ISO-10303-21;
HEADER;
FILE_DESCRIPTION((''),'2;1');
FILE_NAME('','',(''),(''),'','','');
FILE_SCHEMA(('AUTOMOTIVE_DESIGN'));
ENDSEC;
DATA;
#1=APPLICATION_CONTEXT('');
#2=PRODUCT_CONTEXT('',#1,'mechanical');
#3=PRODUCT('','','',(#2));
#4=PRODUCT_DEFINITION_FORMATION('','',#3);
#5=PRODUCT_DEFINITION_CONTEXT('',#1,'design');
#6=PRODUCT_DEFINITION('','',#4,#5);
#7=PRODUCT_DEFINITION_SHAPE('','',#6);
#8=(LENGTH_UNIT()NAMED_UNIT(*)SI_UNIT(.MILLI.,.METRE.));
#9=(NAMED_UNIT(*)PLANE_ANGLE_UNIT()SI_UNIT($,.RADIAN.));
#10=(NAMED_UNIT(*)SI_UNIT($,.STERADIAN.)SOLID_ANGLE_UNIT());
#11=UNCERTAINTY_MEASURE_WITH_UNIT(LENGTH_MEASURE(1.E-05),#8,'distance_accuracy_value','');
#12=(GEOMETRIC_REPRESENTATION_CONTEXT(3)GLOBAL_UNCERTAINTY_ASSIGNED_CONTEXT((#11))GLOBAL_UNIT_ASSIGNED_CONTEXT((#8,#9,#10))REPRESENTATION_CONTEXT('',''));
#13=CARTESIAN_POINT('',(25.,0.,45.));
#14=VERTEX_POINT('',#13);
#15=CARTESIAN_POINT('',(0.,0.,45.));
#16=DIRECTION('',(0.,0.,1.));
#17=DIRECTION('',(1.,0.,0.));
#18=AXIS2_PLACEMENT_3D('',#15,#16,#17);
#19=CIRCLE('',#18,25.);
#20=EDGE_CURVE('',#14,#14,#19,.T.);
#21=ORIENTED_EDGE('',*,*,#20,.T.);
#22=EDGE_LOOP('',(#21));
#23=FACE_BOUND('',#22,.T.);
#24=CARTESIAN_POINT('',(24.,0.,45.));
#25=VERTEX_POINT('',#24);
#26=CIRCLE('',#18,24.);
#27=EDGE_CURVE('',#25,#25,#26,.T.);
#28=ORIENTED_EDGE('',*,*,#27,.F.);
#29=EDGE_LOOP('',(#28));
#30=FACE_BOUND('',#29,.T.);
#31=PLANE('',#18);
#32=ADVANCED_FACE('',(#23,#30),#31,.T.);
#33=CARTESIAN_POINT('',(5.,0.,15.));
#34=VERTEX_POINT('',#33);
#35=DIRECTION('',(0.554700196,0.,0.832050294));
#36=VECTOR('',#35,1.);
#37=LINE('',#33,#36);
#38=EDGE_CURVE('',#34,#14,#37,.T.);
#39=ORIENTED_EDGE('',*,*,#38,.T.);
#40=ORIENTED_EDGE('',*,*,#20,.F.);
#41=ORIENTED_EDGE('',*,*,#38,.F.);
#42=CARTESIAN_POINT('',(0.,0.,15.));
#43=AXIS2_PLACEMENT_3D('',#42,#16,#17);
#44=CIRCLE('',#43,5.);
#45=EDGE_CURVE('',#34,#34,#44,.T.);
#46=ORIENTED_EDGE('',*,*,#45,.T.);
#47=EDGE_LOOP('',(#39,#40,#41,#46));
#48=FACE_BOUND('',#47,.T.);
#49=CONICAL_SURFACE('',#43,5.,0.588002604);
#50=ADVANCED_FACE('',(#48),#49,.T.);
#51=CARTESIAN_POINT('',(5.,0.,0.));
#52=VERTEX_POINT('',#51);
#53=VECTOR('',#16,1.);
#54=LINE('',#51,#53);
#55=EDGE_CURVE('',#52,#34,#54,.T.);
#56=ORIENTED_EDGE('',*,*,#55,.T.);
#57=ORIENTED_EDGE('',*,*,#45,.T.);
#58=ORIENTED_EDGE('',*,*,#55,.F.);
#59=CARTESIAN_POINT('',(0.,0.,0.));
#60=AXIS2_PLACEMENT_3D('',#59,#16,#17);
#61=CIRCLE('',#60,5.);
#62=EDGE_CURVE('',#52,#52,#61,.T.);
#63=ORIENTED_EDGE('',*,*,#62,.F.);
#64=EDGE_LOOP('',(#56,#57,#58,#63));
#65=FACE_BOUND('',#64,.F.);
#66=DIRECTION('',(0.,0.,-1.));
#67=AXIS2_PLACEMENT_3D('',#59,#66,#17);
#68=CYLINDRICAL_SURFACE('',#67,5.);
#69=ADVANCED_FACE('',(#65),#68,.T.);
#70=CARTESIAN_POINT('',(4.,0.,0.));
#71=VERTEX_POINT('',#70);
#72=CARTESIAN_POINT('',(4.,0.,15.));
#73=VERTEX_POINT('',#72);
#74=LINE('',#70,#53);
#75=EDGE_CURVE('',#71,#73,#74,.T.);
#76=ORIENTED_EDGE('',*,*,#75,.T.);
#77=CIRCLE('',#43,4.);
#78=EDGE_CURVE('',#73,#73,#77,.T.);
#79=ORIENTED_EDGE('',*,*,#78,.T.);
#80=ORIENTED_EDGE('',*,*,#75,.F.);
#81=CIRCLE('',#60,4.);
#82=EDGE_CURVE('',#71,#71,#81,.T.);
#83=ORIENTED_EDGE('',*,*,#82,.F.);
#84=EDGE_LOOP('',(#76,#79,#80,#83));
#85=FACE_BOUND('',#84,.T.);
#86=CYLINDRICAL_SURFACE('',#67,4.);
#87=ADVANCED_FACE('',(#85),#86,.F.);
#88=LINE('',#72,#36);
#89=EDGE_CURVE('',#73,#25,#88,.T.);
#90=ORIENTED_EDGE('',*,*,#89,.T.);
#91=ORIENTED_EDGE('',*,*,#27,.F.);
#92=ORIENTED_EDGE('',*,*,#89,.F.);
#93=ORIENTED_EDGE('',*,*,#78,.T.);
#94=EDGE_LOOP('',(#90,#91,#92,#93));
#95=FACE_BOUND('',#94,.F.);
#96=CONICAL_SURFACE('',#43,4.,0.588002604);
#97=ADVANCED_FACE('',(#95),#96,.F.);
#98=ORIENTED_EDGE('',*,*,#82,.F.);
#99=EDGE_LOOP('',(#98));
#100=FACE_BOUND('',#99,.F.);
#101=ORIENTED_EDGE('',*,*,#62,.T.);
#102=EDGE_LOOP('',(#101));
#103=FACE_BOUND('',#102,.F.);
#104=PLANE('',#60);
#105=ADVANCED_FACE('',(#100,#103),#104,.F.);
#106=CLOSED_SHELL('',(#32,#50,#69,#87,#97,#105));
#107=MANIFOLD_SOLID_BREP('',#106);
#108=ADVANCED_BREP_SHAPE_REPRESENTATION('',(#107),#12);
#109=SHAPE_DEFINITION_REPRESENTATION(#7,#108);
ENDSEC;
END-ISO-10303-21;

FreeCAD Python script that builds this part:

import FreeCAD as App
import Part
import Sketcher
from FreeCAD import Vector


def add_polygon(sketch, points):
    """Adds a closed chain of lines whose ends are joined by coincident constraints."""
    first, n = sketch.GeometryCount, len(points)
    for a, b in zip(points, points[1:] + points[:1]):
        sketch.addGeometry(Part.LineSegment(App.Vector(*a, 0), App.Vector(*b, 0)), False)
    for i in range(n):
        sketch.addConstraint(Sketcher.Constraint("Coincident", first + i, 2, first + (i + 1) % n, 1))

doc = App.newDocument("Part")
params = doc.addObject("Spreadsheet::Sheet", "Params")
for row, (alias, value) in enumerate([
    ("sketch1_width", "4 mm"),
    ("sketch1_width2", "24 mm"),
    ("sketch1_height", "30 mm"),
    ("revolution_angle", "360 deg"),
    ("sketch2_width", "5 mm"),
    ("sketch2_width2", "25 mm"),
    ("sketch2_height", "30 mm"),
    ("revolution2_angle", "360 deg"),
    ("sketch3_diameter", "8 mm"),
    ("pad1_length", "15 mm"),
    ("sketch4_diameter", "10 mm"),
    ("pad2_length", "15 mm"),
], start=1):
    params.set(f"A{row}", alias)
    params.set(f"B{row}", "=" + value)
    params.setAlias(f"B{row}", alias)

body = doc.addObject("PartDesign::Body", "Body")

# Sketch on XZ plane
sketch1 = body.newObject("Sketcher::SketchObject", "Sketch")
sketch1.AttachmentSupport = (doc.getObject("XZ_Plane"), [""])
sketch1.MapMode = "FlatFace"
add_polygon(sketch1, [(0, 15), (4, 15), (24, 45), (0, 45)])  # lines 0-3
sketch1.addConstraint(Sketcher.Constraint("Horizontal", 0))
sketch1.addConstraint(Sketcher.Constraint("Horizontal", 2))
sketch1.addConstraint(Sketcher.Constraint("Vertical", 3))
sketch1.addConstraint(Sketcher.Constraint("PointOnObject", 2, 2, -2))
sketch1.addConstraint(Sketcher.Constraint("DistanceX", 0, 1, 0, 2, 4.0))
sketch1.addConstraint(Sketcher.Constraint("DistanceX", 2, 2, 2, 1, 24.0))
sketch1.addConstraint(Sketcher.Constraint("DistanceY", 3, 2, 3, 1, 30.0))
sketch1.addConstraint(Sketcher.Constraint("DistanceY", -1, 1, 0, 2, 15.0))
sketch1.setExpression("Constraints[8]", "Params.sketch1_width")
sketch1.setExpression("Constraints[9]", "Params.sketch1_width2")
sketch1.setExpression("Constraints[10]", "Params.sketch1_height")
revolution = body.newObject("PartDesign::Revolution", "Revolution")
revolution.Profile = sketch1
revolution.ReferenceAxis = (sketch1, ["V_Axis"])
revolution.setExpression("Angle", "Params.revolution_angle")
body2 = doc.addObject("PartDesign::Body", "Body001")

# Sketch on XZ plane
sketch2 = body2.newObject("Sketcher::SketchObject", "Sketch001")
sketch2.AttachmentSupport = (doc.getObject("XZ_Plane001"), [""])
sketch2.MapMode = "FlatFace"
add_polygon(sketch2, [(0, 15), (5, 15), (25, 45), (0, 45)])  # lines 0-3
sketch2.addConstraint(Sketcher.Constraint("Horizontal", 0))
sketch2.addConstraint(Sketcher.Constraint("Horizontal", 2))
sketch2.addConstraint(Sketcher.Constraint("Vertical", 3))
sketch2.addConstraint(Sketcher.Constraint("PointOnObject", 2, 2, -2))
sketch2.addConstraint(Sketcher.Constraint("DistanceX", 0, 1, 0, 2, 5.0))
sketch2.addConstraint(Sketcher.Constraint("DistanceX", 2, 2, 2, 1, 25.0))
sketch2.addConstraint(Sketcher.Constraint("DistanceY", 3, 2, 3, 1, 30.0))
sketch2.addConstraint(Sketcher.Constraint("DistanceY", -1, 1, 0, 2, 15.0))
sketch2.setExpression("Constraints[8]", "Params.sketch2_width")
sketch2.setExpression("Constraints[9]", "Params.sketch2_width2")
sketch2.setExpression("Constraints[10]", "Params.sketch2_height")
revolution2 = body2.newObject("PartDesign::Revolution", "Revolution001")
revolution2.Profile = sketch2
revolution2.ReferenceAxis = (sketch2, ["V_Axis"])
revolution2.setExpression("Angle", "Params.revolution2_angle")
doc.recompute()

boolean = body2.newObject("PartDesign::Boolean", "Boolean")
boolean.Type = "Cut"
boolean.addObjects([body])
body3 = doc.addObject("PartDesign::Body", "Body002")

# Sketch on XY plane
sketch3 = body3.newObject("Sketcher::SketchObject", "Sketch002")
sketch3.AttachmentSupport = (doc.getObject("XY_Plane002"), [""])
sketch3.MapMode = "FlatFace"
sketch3.addGeometry(Part.Circle(Vector(0, 0, 0), Vector(0, 0, 1), 4), False)
sketch3.addConstraint(Sketcher.Constraint("Coincident", 0, 3, -1, 1))
sketch3.addConstraint(Sketcher.Constraint("Diameter", 0, 8.0))
sketch3.setExpression("Constraints[1]", "Params.sketch3_diameter")
pad1 = body3.newObject("PartDesign::Pad", "Pad")
pad1.Profile = sketch3
pad1.setExpression("Length", "Params.pad1_length")
body4 = doc.addObject("PartDesign::Body", "Body003")

# Sketch on XY plane
sketch4 = body4.newObject("Sketcher::SketchObject", "Sketch003")
sketch4.AttachmentSupport = (doc.getObject("XY_Plane003"), [""])
sketch4.MapMode = "FlatFace"
sketch4.addGeometry(Part.Circle(Vector(0, 0, 0), Vector(0, 0, 1), 5), False)
sketch4.addConstraint(Sketcher.Constraint("Coincident", 0, 3, -1, 1))
sketch4.addConstraint(Sketcher.Constraint("Diameter", 0, 10.0))
sketch4.setExpression("Constraints[1]", "Params.sketch4_diameter")
pad2 = body4.newObject("PartDesign::Pad", "Pad001")
pad2.Profile = sketch4
pad2.setExpression("Length", "Params.pad2_length")
doc.recompute()

boolean2 = body4.newObject("PartDesign::Boolean", "Boolean001")
boolean2.Type = "Cut"
boolean2.addObjects([body3])
doc.recompute()

boolean3 = body4.newObject("PartDesign::Boolean", "Boolean002")
boolean3.Type = "Fuse"
boolean3.addObjects([body2])

doc.recompute()
